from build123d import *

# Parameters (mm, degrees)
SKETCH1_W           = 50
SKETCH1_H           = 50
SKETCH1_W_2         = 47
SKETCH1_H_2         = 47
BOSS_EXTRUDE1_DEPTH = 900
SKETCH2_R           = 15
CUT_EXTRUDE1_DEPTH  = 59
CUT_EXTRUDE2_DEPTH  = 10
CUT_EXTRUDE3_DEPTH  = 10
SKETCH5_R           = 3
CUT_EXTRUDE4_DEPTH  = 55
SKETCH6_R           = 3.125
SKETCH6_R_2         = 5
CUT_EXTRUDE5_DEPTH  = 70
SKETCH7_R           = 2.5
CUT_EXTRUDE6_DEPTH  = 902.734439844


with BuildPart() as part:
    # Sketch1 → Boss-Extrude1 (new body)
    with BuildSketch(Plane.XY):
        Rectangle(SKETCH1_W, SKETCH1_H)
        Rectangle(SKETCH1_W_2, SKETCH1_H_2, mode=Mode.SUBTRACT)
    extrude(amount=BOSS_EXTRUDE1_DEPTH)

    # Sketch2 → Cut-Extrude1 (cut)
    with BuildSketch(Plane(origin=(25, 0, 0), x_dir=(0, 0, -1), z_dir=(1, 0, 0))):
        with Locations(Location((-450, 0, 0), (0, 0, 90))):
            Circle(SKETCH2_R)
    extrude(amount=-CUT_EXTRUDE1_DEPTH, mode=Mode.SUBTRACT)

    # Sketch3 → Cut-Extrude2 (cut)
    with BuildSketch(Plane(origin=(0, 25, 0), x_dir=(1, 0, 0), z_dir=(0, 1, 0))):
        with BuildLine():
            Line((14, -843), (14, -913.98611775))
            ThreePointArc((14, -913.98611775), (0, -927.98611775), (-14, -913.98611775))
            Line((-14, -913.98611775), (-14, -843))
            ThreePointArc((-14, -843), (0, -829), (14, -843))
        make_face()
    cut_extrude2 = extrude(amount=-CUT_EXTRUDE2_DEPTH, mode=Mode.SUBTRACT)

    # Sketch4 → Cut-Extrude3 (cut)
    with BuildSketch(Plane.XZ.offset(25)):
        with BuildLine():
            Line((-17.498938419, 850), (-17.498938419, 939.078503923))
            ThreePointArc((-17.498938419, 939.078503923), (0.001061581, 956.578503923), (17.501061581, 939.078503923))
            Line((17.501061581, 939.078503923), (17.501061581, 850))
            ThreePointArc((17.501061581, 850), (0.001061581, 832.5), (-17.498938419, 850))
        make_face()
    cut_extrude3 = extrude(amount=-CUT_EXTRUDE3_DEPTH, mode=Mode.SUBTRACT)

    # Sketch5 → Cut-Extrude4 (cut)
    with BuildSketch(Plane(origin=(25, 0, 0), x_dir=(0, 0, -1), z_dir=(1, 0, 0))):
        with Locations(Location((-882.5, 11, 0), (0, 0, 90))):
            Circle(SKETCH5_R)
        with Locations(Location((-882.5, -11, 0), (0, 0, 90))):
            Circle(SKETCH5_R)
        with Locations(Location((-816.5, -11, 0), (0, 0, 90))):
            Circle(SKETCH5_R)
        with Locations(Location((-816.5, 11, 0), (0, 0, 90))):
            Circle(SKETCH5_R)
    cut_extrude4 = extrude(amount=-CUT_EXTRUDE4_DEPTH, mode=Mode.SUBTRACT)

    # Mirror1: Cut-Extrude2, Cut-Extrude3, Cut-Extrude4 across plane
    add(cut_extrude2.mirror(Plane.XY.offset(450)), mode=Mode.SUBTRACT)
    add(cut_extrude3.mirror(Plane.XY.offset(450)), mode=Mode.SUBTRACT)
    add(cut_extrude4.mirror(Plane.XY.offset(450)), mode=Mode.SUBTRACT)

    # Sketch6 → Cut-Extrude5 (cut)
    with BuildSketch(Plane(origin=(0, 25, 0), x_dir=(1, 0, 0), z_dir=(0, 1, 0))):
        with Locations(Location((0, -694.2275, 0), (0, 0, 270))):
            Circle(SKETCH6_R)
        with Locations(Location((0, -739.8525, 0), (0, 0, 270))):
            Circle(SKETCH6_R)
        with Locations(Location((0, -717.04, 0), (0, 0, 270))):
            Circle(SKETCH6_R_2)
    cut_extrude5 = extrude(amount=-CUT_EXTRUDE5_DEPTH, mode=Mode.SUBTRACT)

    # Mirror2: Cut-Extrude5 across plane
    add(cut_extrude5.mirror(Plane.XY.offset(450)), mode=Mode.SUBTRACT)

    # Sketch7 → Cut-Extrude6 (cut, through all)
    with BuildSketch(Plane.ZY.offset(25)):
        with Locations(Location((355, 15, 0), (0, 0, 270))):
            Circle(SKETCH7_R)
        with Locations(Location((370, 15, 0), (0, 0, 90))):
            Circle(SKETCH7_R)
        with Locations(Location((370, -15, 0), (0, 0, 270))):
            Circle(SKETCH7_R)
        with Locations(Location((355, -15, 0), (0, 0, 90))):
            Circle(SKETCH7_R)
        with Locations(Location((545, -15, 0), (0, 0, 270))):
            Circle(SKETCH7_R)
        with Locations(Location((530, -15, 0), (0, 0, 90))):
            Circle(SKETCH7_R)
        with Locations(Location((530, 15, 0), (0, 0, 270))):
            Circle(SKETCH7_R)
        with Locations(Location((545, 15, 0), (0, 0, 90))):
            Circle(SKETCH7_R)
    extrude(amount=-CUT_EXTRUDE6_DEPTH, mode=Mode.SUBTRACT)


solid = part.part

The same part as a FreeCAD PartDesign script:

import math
import FreeCAD as App
import Part
import Sketcher

V = App.Vector


def add_polygon(sketch, points):
    """Adds a closed chain of lines whose ends are joined by coincident constraints."""
    first, n = sketch.GeometryCount, len(points)
    for a, b in zip(points, points[1:] + points[:1]):
        sketch.addGeometry(Part.LineSegment(App.Vector(*a, 0), App.Vector(*b, 0)), False)
    for i in range(n):
        sketch.addConstraint(Sketcher.Constraint("Coincident", first + i, 2, first + (i + 1) % n, 1))

doc = App.newDocument("Part")
body = doc.addObject("PartDesign::Body", "Body")

sketch1 = doc.addObject("Sketcher::SketchObject", "Sketch")
body.addObject(sketch1)
sketch1.AttachmentSupport = (doc.XY_Plane, [""])
sketch1.MapMode = "FlatFace"
add_polygon(sketch1, [(-25, 25), (-25, -25), (25, -25), (25, 25)])
add_polygon(sketch1, [(24, -24), (-24, -24), (-24, 24), (24, 24)])
sketch1.addConstraint([
    Sketcher.Constraint("Vertical", 0),
    Sketcher.Constraint("Horizontal", 1),
    Sketcher.Constraint("Vertical", 2),
    Sketcher.Constraint("Horizontal", 3),
    Sketcher.Constraint("Horizontal", 4),
    Sketcher.Constraint("Vertical", 5),
    Sketcher.Constraint("Horizontal", 6),
    Sketcher.Constraint("Vertical", 7),
    Sketcher.Constraint("Symmetric", 0, 2, 2, 2, -1, 1),
    Sketcher.Constraint("Symmetric", 4, 2, 6, 2, -1, 1),
    Sketcher.Constraint("Equal", 3, 0),
    Sketcher.Constraint("Equal", 6, 5),
    Sketcher.Constraint("DistanceX", 1, 1, 1, 2, 50.0),
    Sketcher.Constraint("DistanceX", 4, 2, 4, 1, 47.0),
])
pad1 = doc.addObject("PartDesign::Pad", "Pad")
body.addObject(pad1)
pad1.Profile = sketch1
pad1.Length = 900

sketch2 = doc.addObject("Sketcher::SketchObject", "Sketch001")
body.addObject(sketch2)
sketch2.AttachmentSupport = (doc.YZ_Plane, [""])
sketch2.MapMode = "FlatFace"
sketch2.AttachmentOffset = App.Placement(V(0, 0, 25), App.Rotation())
sketch2.addGeometry(Part.Circle(V(0, 450, 0), V(0, 0, 1), 15), False)
sketch2.addConstraint([
    Sketcher.Constraint("PointOnObject", 0, 3, -2),
    Sketcher.Constraint("Diameter", 0, 30.0),
    Sketcher.Constraint("DistanceY", -1, 1, 0, 3, 450.0),
])
pocket1 = doc.addObject("PartDesign::Pocket", "Pocket")
body.addObject(pocket1)
pocket1.Profile = sketch2
pocket1.Length = 59

sketch3 = doc.addObject("Sketcher::SketchObject", "Sketch002")
body.addObject(sketch3)
sketch3.AttachmentSupport = (doc.XZ_Plane, [""])
sketch3.MapMode = "FlatFace"
sketch3.AttachmentOffset = App.Placement(V(0, 0, -25), App.Rotation())
sketch3.addGeometry([
    Part.LineSegment(V(14, 914, 0), V(14, 843, 0)),
    Part.ArcOfCircle(Part.Circle(V(0, 843, 0), V(0, 0, 1), 14), math.radians(180), math.radians(360)),
    Part.LineSegment(V(-14, 843, 0), V(-14, 914, 0)),
    Part.ArcOfCircle(Part.Circle(V(0, 914, 0), V(0, 0, 1), 14), math.radians(0), math.radians(180)),
], False)
sketch3.addConstraint([
    Sketcher.Constraint("Tangent", 0, 2, 1, 2),
    Sketcher.Constraint("Tangent", 1, 1, 2, 1),
    Sketcher.Constraint("Tangent", 2, 2, 3, 2),
    Sketcher.Constraint("Tangent", 3, 1, 0, 1),
    Sketcher.Constraint("Vertical", 0),
    Sketcher.Constraint("Vertical", 2),
    Sketcher.Constraint("PointOnObject", 1, 3, -2),
    Sketcher.Constraint("Radius", 1, 14.0),
    Sketcher.Constraint("DistanceY", -1, 1, 1, 3, 843.0),
    Sketcher.Constraint("DistanceY", 0, 2, 0, 1, 70.986118),
])
pocket2 = doc.addObject("PartDesign::Pocket", "Pocket001")
body.addObject(pocket2)
pocket2.Profile = sketch3
pocket2.Length = 10
pocket2.Reversed = True

sketch4 = doc.addObject("Sketcher::SketchObject", "Sketch003")
body.addObject(sketch4)
sketch4.AttachmentSupport = (doc.XZ_Plane, [""])
sketch4.MapMode = "FlatFace"
sketch4.AttachmentOffset = App.Placement(V(0, 0, 25), App.Rotation())
sketch4.addGeometry([
    Part.LineSegment(V(-17, 939, 0), V(-17, 850, 0)),
    Part.ArcOfCircle(Part.Circle(V(0, 850, 0), V(0, 0, 1), 18), math.radians(180), math.radians(360)),
    Part.LineSegment(V(18, 850, 0), V(18, 939, 0)),
    Part.ArcOfCircle(Part.Circle(V(0, 939, 0), V(0, 0, 1), 18), math.radians(0), math.radians(180)),
], False)
sketch4.addConstraint([
    Sketcher.Constraint("Tangent", 0, 2, 1, 1),
    Sketcher.Constraint("Tangent", 1, 2, 2, 1),
    Sketcher.Constraint("Tangent", 2, 2, 3, 1),
    Sketcher.Constraint("Tangent", 3, 2, 0, 1),
    Sketcher.Constraint("Vertical", 0),
    Sketcher.Constraint("Vertical", 2),
    Sketcher.Constraint("Radius", 1, 17.5),
    Sketcher.Constraint("DistanceY", -1, 1, 1, 3, 850.0),
    Sketcher.Constraint("DistanceY", 0, 2, 0, 1, 89.078504),
    Sketcher.Constraint("DistanceX", -1, 1, 1, 3, 0.001062),
])
pocket3 = doc.addObject("PartDesign::Pocket", "Pocket002")
body.addObject(pocket3)
pocket3.Profile = sketch4
pocket3.Length = 10

sketch5 = doc.addObject("Sketcher::SketchObject", "Sketch004")
body.addObject(sketch5)
sketch5.AttachmentSupport = (doc.YZ_Plane, [""])
sketch5.MapMode = "FlatFace"
sketch5.AttachmentOffset = App.Placement(V(0, 0, 25), App.Rotation())
sketch5.addGeometry([
    Part.Circle(V(11, 882.5, 0), V(0, 0, 1), 3),
    Part.Circle(V(-11, 882.5, 0), V(0, 0, 1), 3),
    Part.Circle(V(-11, 816.5, 0), V(0, 0, 1), 3),
    Part.Circle(V(11, 816.5, 0), V(0, 0, 1), 3),
], False)
sketch5.addConstraint([
    Sketcher.Constraint("Equal", 0, 1),
    Sketcher.Constraint("Equal", 1, 2),
    Sketcher.Constraint("Equal", 2, 3),
    Sketcher.Constraint("Symmetric", 0, 3, 1, 3, -2),
    Sketcher.Constraint("Symmetric", 2, 3, 3, 3, -2),
    Sketcher.Constraint("Vertical", 1, 3, 2, 3),
    Sketcher.Constraint("Diameter", 0, 6.0),
    Sketcher.Constraint("DistanceX", -1, 1, 0, 3, 11.0),
    Sketcher.Constraint("DistanceY", 2, 3, 1, 3, 66.0),
    Sketcher.Constraint("DistanceY", -1, 1, 0, 3, 882.5),
])
pocket4 = doc.addObject("PartDesign::Pocket", "Pocket003")
body.addObject(pocket4)
pocket4.Profile = sketch5
pocket4.Length = 55
doc.recompute()

datumplane = doc.addObject("PartDesign::Plane", "DatumPlane")
body.addObject(datumplane)
datumplane.AttachmentSupport = (doc.XY_Plane, [""])
datumplane.MapMode = "FlatFace"
datumplane.AttachmentOffset = App.Placement(V(0, 0, 450), App.Rotation())
mirrored = doc.addObject("PartDesign::Mirrored", "Mirrored")
body.addObject(mirrored)
mirrored.Originals = [pocket2, pocket3, pocket4]
mirrored.MirrorPlane = (datumplane, [""])
body.Tip = mirrored

sketch6 = doc.addObject("Sketcher::SketchObject", "Sketch005")
body.addObject(sketch6)
sketch6.AttachmentSupport = (doc.XZ_Plane, [""])
sketch6.MapMode = "FlatFace"
sketch6.AttachmentOffset = App.Placement(V(0, 0, -25), App.Rotation())
sketch6.addGeometry([
    Part.Circle(V(0, 694.2, 0), V(0, 0, 1), 3.1),
    Part.Circle(V(0, 739.9, 0), V(0, 0, 1), 3.1),
    Part.Circle(V(0, 717, 0), V(0, 0, 1), 5),
], False)
sketch6.addConstraint([
    Sketcher.Constraint("Equal", 0, 1),
    Sketcher.Constraint("PointOnObject", 0, 3, -2),
    Sketcher.Constraint("PointOnObject", 1, 3, -2),
    Sketcher.Constraint("PointOnObject", 2, 3, -2),
    Sketcher.Constraint("Diameter", 2, 10.0),
    Sketcher.Constraint("Diameter", 0, 6.25),
    Sketcher.Constraint("DistanceY", -1, 1, 2, 3, 717.04),
    Sketcher.Constraint("DistanceY", 0, 3, 1, 3, 45.625),
    Sketcher.Constraint("DistanceY", -1, 1, 0, 3, 694.2275),
])
pocket5 = doc.addObject("PartDesign::Pocket", "Pocket004")
body.addObject(pocket5)
pocket5.Profile = sketch6
pocket5.Length = 70
pocket5.Reversed = True
doc.recompute()

datumplane2 = doc.addObject("PartDesign::Plane", "DatumPlane001")
body.addObject(datumplane2)
datumplane2.AttachmentSupport = (doc.XY_Plane, [""])
datumplane2.MapMode = "FlatFace"
datumplane2.AttachmentOffset = App.Placement(V(0, 0, 450), App.Rotation())
mirrored2 = doc.addObject("PartDesign::Mirrored", "Mirrored001")
body.addObject(mirrored2)
mirrored2.Originals = [pocket5]
mirrored2.MirrorPlane = (datumplane2, [""])
body.Tip = mirrored2

sketch7 = doc.addObject("Sketcher::SketchObject", "Sketch006")
body.addObject(sketch7)
sketch7.AttachmentSupport = (doc.YZ_Plane, [""])
sketch7.MapMode = "FlatFace"
sketch7.AttachmentOffset = App.Placement(V(0, 0, -25), App.Rotation())
sketch7.addGeometry([
    Part.Circle(V(15, 355, 0), V(0, 0, 1), 2.5),
    Part.Circle(V(15, 370, 0), V(0, 0, 1), 2.5),
    Part.Circle(V(-15, 370, 0), V(0, 0, 1), 2.5),
    Part.Circle(V(-15, 355, 0), V(0, 0, 1), 2.5),
    Part.Circle(V(-15, 545, 0), V(0, 0, 1), 2.5),
    Part.Circle(V(-15, 530, 0), V(0, 0, 1), 2.5),
    Part.Circle(V(15, 530, 0), V(0, 0, 1), 2.5),
    Part.Circle(V(15, 545, 0), V(0, 0, 1), 2.5),
], False)
sketch7.addConstraint([
    Sketcher.Constraint("Equal", 0, 1),
    Sketcher.Constraint("Equal", 1, 2),
    Sketcher.Constraint("Equal", 2, 3),
    Sketcher.Constraint("Equal", 3, 4),
    Sketcher.Constraint("Equal", 4, 5),
    Sketcher.Constraint("Equal", 5, 6),
    Sketcher.Constraint("Equal", 6, 7),
    Sketcher.Constraint("Symmetric", 1, 3, 2, 3, -2),
    Sketcher.Constraint("Symmetric", 0, 3, 3, 3, -2),
    Sketcher.Constraint("Symmetric", 5, 3, 6, 3, -2),
    Sketcher.Constraint("Symmetric", 4, 3, 7, 3, -2),
    Sketcher.Constraint("Vertical", 0, 3, 1, 3),
    Sketcher.Constraint("Vertical", 3, 3, 4, 3),
    Sketcher.Constraint("Vertical", 4, 3, 5, 3),
    Sketcher.Constraint("Diameter", 0, 5.0),
    Sketcher.Constraint("DistanceX", -1, 1, 0, 3, 15.0),
    Sketcher.Constraint("DistanceY", -1, 1, 0, 3, 355.0),
    Sketcher.Constraint("DistanceY", -1, 1, 1, 3, 370.0),
    Sketcher.Constraint("DistanceY", -1, 1, 4, 3, 545.0),
    Sketcher.Constraint("DistanceY", -1, 1, 5, 3, 530.0),
])
pocket6 = doc.addObject("PartDesign::Pocket", "Pocket005")
body.addObject(pocket6)
pocket6.Profile = sketch7
pocket6.Type = "ThroughAll"
pocket6.Reversed = True

doc.recompute()
